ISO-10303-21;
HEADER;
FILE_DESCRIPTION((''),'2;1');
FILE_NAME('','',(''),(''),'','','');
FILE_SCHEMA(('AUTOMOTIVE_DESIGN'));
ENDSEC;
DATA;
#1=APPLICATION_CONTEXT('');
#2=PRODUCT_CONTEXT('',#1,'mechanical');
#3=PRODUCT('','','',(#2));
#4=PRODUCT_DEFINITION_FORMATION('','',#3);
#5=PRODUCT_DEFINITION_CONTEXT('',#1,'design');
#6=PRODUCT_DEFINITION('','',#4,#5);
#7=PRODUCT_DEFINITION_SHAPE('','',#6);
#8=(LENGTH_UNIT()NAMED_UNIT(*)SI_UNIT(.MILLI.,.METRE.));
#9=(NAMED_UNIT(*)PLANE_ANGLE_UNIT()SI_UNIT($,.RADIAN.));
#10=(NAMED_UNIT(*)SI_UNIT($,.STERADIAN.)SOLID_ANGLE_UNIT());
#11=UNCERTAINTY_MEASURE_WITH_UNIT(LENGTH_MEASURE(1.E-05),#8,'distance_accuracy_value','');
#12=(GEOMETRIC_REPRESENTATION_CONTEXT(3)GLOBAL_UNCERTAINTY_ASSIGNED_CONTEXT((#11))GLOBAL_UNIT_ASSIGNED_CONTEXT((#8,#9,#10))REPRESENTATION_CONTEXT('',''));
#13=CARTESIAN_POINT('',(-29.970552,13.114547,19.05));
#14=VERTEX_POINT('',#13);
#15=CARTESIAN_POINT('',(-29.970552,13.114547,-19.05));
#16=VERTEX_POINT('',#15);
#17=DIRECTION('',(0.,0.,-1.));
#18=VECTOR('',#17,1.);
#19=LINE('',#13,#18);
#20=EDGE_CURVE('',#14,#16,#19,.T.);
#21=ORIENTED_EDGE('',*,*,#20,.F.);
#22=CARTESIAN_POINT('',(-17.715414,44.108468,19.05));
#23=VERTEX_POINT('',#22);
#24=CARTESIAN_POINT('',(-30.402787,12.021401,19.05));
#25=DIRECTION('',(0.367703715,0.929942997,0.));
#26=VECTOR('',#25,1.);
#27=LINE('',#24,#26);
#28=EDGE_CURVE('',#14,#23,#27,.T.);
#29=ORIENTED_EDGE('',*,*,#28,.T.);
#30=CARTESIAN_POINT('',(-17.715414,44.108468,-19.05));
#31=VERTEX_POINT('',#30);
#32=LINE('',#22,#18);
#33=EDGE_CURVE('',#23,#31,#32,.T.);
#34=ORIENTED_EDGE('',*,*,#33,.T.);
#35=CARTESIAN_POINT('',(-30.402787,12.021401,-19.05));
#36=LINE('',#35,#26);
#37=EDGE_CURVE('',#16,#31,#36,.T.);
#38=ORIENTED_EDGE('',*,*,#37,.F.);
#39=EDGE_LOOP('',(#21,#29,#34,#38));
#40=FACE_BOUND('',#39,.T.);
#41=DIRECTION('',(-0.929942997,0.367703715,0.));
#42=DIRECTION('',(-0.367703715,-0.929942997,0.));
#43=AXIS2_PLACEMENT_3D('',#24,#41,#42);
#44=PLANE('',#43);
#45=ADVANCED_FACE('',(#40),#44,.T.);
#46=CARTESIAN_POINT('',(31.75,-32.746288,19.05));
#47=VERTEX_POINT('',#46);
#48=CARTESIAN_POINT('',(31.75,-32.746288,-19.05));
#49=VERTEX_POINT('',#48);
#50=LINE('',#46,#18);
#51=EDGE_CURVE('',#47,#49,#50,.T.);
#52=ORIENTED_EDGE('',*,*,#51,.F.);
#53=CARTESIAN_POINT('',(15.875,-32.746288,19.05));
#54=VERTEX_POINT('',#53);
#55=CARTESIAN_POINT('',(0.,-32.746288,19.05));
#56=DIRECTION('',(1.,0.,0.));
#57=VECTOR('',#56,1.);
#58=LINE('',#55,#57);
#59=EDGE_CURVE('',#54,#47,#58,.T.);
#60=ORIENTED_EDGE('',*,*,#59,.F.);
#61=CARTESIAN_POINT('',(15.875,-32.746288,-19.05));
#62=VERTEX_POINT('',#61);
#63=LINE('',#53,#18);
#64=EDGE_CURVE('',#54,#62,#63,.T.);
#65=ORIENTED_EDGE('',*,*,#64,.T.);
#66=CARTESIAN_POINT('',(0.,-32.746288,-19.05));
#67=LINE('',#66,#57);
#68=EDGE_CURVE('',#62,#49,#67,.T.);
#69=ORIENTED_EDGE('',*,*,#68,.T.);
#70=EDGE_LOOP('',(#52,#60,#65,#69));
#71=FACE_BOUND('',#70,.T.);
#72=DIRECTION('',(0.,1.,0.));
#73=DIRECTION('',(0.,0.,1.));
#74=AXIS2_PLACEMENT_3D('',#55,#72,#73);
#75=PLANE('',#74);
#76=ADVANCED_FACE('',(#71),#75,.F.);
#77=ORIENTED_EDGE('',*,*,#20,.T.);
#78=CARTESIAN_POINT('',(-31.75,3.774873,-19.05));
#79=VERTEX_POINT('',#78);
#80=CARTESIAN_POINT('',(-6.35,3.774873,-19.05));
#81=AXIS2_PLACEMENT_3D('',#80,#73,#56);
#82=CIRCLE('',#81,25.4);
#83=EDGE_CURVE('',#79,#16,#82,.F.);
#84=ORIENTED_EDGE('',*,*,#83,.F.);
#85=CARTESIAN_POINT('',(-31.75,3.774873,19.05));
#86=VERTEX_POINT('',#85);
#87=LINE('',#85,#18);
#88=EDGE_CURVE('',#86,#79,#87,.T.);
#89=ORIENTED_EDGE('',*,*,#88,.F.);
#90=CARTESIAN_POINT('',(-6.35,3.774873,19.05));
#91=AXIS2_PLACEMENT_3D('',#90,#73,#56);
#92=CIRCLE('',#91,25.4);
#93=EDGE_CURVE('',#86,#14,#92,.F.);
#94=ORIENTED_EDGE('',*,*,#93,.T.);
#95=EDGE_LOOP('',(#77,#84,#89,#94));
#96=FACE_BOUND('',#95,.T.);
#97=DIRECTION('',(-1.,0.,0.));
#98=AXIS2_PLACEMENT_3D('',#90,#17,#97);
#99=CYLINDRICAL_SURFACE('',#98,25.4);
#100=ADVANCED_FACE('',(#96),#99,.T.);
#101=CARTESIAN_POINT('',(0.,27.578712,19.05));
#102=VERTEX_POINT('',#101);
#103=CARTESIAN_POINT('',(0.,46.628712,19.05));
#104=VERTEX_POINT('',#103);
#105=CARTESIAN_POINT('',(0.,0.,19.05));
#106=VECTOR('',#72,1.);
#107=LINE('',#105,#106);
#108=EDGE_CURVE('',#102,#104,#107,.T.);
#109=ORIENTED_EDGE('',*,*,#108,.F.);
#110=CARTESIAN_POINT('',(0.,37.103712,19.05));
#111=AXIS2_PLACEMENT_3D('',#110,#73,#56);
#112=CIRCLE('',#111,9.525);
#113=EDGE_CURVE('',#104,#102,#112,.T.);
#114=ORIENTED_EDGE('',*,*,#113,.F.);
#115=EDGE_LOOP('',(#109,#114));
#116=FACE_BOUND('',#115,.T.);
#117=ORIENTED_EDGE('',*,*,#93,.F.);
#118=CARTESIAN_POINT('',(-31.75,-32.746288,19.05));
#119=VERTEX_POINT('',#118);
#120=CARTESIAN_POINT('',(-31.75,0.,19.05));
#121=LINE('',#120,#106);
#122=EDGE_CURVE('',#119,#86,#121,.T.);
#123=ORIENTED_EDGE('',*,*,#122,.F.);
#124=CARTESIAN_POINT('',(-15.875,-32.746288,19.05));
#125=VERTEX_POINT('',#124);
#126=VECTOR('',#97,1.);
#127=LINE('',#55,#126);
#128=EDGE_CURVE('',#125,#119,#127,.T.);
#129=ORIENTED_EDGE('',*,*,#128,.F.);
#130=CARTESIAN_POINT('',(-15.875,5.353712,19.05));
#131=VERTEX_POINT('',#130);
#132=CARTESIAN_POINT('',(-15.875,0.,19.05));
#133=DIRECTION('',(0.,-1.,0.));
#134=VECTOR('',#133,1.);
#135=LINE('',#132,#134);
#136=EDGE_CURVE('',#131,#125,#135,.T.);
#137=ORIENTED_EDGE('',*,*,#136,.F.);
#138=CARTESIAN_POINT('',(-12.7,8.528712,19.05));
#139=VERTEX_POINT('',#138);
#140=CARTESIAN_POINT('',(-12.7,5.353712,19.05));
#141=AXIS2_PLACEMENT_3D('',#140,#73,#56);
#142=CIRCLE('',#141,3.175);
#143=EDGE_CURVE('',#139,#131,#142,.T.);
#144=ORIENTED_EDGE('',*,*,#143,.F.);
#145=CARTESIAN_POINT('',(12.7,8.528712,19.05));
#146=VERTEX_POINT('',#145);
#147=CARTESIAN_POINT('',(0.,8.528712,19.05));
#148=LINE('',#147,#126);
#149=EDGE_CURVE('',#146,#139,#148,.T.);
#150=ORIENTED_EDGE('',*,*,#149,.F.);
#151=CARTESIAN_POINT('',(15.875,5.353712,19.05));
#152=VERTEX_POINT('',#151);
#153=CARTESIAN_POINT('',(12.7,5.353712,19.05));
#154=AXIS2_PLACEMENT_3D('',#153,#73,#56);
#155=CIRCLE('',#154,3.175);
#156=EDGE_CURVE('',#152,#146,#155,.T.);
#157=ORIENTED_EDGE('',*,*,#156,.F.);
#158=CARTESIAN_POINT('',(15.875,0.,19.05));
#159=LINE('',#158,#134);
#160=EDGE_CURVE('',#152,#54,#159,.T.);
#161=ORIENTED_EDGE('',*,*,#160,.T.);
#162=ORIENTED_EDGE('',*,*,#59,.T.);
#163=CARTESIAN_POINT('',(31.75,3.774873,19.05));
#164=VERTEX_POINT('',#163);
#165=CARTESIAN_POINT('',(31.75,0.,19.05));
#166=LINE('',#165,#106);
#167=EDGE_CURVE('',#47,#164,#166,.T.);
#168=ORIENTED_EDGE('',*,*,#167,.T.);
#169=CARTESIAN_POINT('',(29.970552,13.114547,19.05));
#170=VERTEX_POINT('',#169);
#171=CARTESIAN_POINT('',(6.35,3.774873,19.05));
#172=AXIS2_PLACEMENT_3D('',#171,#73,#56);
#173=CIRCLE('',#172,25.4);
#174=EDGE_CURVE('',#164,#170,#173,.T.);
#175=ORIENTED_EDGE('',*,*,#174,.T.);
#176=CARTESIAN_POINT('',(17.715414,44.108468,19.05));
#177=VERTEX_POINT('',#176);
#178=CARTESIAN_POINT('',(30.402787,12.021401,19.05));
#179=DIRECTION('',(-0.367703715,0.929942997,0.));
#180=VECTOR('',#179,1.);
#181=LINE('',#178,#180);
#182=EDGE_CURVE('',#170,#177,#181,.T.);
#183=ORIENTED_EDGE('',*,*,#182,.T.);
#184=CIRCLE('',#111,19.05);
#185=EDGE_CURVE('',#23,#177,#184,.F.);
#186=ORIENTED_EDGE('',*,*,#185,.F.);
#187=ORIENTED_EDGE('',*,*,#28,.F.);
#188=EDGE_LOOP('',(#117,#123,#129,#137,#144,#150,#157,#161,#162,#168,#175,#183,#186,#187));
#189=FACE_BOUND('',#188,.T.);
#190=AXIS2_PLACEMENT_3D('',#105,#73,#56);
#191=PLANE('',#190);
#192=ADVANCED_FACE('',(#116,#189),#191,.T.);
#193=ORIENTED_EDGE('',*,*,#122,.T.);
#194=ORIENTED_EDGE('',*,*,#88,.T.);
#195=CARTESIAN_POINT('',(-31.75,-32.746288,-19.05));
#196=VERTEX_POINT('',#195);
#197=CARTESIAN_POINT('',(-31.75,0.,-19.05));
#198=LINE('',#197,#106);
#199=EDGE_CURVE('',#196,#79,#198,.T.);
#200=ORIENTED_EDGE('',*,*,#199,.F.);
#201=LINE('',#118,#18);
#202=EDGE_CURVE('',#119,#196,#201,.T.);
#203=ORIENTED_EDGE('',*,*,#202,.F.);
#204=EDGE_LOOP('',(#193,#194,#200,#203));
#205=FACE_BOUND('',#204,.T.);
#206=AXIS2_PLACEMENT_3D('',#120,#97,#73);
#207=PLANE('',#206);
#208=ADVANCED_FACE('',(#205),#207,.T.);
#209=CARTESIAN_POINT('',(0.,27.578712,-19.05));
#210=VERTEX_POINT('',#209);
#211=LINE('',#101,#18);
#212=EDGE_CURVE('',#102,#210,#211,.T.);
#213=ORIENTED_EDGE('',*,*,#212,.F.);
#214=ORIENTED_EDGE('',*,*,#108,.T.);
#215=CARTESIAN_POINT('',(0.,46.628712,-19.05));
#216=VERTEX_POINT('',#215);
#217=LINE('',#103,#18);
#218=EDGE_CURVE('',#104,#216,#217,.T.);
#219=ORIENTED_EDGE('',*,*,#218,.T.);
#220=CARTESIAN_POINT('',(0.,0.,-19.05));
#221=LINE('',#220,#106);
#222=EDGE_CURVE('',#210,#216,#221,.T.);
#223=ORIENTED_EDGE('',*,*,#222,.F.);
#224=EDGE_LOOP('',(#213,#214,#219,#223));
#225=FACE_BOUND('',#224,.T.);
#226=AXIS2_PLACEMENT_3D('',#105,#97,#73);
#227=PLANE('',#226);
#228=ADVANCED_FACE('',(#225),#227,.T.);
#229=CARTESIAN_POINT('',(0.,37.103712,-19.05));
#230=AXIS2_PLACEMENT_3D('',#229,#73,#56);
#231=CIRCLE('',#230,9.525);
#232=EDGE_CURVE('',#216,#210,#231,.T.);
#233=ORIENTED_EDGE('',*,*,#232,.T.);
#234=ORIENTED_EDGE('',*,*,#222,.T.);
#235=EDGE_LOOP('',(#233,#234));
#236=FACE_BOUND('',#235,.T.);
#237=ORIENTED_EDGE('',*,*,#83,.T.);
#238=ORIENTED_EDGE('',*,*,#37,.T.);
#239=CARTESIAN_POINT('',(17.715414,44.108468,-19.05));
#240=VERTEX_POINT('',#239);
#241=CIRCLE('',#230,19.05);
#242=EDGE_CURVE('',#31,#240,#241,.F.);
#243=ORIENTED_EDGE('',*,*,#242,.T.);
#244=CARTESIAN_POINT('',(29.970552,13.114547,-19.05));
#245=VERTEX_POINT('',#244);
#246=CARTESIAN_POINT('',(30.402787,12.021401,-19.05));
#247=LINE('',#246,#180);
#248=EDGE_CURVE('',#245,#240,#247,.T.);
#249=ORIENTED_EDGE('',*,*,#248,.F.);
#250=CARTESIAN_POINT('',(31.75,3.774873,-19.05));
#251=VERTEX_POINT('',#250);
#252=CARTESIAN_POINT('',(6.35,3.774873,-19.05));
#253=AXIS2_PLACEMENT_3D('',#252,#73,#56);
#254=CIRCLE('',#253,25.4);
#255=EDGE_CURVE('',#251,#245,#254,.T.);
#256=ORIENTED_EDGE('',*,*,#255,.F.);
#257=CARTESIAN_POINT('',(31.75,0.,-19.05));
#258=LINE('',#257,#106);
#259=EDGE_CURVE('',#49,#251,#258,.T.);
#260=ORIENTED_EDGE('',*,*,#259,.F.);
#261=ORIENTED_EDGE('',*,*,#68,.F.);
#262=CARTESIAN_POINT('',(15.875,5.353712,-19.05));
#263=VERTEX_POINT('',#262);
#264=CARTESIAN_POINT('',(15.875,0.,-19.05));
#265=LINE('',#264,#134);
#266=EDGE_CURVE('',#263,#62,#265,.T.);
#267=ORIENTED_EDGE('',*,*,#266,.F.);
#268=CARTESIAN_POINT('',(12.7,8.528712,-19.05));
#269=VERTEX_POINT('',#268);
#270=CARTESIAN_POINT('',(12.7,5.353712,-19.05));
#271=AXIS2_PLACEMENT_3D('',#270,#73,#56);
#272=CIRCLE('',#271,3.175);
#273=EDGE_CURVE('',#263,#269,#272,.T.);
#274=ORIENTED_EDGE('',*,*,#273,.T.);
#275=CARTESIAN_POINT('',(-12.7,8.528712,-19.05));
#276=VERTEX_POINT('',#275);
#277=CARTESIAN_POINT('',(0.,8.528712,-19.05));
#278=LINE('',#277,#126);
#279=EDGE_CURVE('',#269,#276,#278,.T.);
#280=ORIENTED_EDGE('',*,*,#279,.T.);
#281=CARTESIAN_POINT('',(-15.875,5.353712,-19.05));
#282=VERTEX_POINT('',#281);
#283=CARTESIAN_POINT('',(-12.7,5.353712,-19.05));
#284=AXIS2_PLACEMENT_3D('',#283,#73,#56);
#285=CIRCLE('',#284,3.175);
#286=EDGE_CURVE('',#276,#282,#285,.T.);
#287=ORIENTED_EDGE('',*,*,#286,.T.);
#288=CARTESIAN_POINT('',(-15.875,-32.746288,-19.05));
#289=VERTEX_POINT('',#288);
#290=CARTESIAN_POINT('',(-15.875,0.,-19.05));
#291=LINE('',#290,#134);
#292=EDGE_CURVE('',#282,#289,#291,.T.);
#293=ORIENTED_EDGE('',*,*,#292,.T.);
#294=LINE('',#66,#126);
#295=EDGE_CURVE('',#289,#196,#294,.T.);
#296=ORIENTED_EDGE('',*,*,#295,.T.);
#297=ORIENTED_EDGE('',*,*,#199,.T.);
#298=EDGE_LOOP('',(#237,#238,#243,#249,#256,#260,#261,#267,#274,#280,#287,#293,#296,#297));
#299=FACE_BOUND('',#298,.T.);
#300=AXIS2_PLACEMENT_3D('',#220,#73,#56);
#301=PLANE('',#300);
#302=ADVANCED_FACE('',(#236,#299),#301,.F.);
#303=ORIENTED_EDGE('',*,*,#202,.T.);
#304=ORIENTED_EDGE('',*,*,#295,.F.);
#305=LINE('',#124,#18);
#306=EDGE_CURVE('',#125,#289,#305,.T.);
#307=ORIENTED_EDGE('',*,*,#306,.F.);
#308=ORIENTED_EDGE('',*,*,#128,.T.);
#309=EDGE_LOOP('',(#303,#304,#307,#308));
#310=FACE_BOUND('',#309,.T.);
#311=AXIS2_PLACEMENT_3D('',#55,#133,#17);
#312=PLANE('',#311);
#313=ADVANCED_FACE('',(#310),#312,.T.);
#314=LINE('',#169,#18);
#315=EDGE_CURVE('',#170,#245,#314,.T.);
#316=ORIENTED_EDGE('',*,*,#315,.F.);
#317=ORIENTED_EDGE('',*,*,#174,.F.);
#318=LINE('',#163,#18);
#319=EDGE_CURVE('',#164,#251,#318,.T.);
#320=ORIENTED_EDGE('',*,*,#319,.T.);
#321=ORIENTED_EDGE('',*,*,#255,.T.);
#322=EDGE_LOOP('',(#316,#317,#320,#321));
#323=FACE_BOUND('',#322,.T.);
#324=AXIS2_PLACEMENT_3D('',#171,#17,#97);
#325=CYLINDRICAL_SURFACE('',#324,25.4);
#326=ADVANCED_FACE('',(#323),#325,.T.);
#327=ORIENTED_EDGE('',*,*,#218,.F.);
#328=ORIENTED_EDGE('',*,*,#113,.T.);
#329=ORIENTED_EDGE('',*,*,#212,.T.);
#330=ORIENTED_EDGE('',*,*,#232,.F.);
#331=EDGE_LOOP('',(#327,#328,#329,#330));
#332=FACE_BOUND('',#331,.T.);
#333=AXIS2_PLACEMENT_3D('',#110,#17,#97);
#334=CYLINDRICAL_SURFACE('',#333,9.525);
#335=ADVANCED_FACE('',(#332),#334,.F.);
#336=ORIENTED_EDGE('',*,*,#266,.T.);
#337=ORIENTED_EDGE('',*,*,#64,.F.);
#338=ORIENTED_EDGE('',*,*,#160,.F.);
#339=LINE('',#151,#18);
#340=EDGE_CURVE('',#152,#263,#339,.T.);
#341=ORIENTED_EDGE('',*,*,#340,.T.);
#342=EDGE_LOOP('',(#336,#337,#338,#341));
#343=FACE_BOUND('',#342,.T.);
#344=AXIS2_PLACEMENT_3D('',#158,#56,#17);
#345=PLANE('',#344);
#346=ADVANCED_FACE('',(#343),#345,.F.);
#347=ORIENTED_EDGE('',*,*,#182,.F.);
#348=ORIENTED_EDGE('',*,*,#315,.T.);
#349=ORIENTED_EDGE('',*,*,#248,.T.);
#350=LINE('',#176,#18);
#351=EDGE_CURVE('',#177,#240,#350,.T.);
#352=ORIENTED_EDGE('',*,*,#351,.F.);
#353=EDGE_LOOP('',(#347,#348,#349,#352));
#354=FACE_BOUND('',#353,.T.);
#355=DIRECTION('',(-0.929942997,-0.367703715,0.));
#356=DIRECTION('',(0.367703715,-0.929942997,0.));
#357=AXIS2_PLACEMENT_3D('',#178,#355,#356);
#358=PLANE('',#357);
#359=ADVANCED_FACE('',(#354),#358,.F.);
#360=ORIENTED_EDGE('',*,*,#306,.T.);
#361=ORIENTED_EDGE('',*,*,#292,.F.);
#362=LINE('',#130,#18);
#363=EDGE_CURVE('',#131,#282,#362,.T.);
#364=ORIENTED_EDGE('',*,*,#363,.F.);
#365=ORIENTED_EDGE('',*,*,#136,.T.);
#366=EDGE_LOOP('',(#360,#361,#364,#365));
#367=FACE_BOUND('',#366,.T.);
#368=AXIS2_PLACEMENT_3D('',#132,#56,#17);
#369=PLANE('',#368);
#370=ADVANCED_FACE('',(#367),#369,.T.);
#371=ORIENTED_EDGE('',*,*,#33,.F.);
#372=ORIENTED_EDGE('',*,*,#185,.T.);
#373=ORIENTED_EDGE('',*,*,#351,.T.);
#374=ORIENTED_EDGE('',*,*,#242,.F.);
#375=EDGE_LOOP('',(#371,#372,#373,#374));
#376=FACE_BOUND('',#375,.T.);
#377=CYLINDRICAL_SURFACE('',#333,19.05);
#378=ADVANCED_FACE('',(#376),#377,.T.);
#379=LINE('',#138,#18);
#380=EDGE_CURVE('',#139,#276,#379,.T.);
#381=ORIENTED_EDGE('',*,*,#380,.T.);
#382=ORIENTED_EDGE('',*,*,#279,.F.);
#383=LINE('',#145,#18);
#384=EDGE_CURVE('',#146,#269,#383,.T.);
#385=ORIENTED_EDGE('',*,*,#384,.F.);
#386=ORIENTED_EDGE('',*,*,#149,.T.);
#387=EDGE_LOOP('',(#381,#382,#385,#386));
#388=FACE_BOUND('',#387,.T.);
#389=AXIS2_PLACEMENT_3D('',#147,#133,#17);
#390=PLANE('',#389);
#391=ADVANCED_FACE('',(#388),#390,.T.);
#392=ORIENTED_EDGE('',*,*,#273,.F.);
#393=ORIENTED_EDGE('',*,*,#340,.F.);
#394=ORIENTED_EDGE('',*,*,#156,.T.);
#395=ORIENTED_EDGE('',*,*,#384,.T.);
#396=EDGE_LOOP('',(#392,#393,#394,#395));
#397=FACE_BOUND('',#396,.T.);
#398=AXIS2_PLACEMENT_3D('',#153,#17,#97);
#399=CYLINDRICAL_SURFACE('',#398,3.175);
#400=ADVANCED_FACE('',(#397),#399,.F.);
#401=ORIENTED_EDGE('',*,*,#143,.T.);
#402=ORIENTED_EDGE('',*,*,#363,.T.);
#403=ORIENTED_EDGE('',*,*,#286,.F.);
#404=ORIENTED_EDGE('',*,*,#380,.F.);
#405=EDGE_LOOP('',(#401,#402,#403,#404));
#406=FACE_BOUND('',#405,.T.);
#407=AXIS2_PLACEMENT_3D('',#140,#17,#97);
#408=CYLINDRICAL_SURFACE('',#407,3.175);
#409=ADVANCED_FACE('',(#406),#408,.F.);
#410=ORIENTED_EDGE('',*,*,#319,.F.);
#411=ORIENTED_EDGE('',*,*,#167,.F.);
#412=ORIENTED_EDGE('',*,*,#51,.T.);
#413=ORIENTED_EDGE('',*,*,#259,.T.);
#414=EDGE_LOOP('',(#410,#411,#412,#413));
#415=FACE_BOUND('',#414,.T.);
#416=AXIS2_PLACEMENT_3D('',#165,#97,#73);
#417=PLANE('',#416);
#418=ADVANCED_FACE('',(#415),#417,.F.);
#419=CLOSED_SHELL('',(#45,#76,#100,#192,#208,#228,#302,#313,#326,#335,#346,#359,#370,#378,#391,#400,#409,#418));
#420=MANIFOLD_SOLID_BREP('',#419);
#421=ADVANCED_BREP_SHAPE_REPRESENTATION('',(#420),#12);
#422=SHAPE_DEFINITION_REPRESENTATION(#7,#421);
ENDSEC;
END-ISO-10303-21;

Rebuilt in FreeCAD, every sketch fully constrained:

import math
import FreeCAD as App
import Part
import Sketcher
Q = App.Units.Quantity

doc = App.newDocument("Part")
body = doc.addObject("PartDesign::Body", "Body")

# Sketch on XY plane
sketch1 = doc.addObject("Sketcher::SketchObject", "Sketch")
body.addObject(sketch1)
sketch1.AttachmentSupport = (doc.XY_Plane, [""])
sketch1.MapMode = "FlatFace"
sketch1.addGeometry(Part.LineSegment(App.Vector(-12.7, 8.5, 0), App.Vector(12.7, 8.5, 0)), False)
sketch1.addGeometry(Part.ArcOfCircle(Part.Circle(App.Vector(12.7, 5.4, 0), App.Vector(0, 0, 1), 3.2), math.radians(0), math.radians(90)), False)
sketch1.addGeometry(Part.LineSegment(App.Vector(15.9, 5.4, 0), App.Vector(15.9, -32.7, 0)), False)
sketch1.addGeometry(Part.LineSegment(App.Vector(15.9, -32.7, 0), App.Vector(31.8, -32.7, 0)), False)
sketch1.addGeometry(Part.LineSegment(App.Vector(31.8, -32.7, 0), App.Vector(31.8, 3.8, 0)), False)
sketch1.addGeometry(Part.ArcOfCircle(Part.Circle(App.Vector(6.4, 3.8, 0), App.Vector(0, 0, 1), 25.4), math.radians(0), math.radians(22)), False)
sketch1.addGeometry(Part.LineSegment(App.Vector(30, 13.1, 0), App.Vector(17.7, 44.1, 0)), False)
sketch1.addGeometry(Part.ArcOfCircle(Part.Circle(App.Vector(0, 37.1, 0), App.Vector(0, 0, 1), 19.1), math.radians(22), math.radians(158)), False)
sketch1.addGeometry(Part.LineSegment(App.Vector(-17.7, 44.1, 0), App.Vector(-30, 13.1, 0)), False)
sketch1.addGeometry(Part.ArcOfCircle(Part.Circle(App.Vector(-6.4, 3.8, 0), App.Vector(0, 0, 1), 25.4), math.radians(158), math.radians(180)), False)
sketch1.addGeometry(Part.LineSegment(App.Vector(-31.8, 3.8, 0), App.Vector(-31.8, -32.7, 0)), False)
sketch1.addGeometry(Part.LineSegment(App.Vector(-31.8, -32.7, 0), App.Vector(-15.9, -32.7, 0)), False)
sketch1.addGeometry(Part.LineSegment(App.Vector(-15.9, -32.7, 0), App.Vector(-15.9, 5.4, 0)), False)
sketch1.addGeometry(Part.ArcOfCircle(Part.Circle(App.Vector(-12.7, 5.4, 0), App.Vector(0, 0, 1), 3.2), math.radians(90), math.radians(180)), False)
sketch1.addGeometry(Part.ArcOfCircle(Part.Circle(App.Vector(0, 37.1, 0), App.Vector(0, 0, 1), 9.5), math.radians(90), math.radians(270)), False)
sketch1.addGeometry(Part.LineSegment(App.Vector(0, 46.6, 0), App.Vector(0, 27.6, 0)), False)
sketch1.addConstraint(Sketcher.Constraint("Tangent", 0, 2, 1, 2))
sketch1.addConstraint(Sketcher.Constraint("Tangent", 1, 1, 2, 1))
sketch1.addConstraint(Sketcher.Constraint("Coincident", 2, 2, 3, 1))
sketch1.addConstraint(Sketcher.Constraint("Coincident", 3, 2, 4, 1))
sketch1.addConstraint(Sketcher.Constraint("Tangent", 4, 2, 5, 1))
sketch1.addConstraint(Sketcher.Constraint("Tangent", 5, 2, 6, 1))
sketch1.addConstraint(Sketcher.Constraint("Tangent", 6, 2, 7, 1))
sketch1.addConstraint(Sketcher.Constraint("Tangent", 7, 2, 8, 1))
sketch1.addConstraint(Sketcher.Constraint("Tangent", 8, 2, 9, 1))
sketch1.addConstraint(Sketcher.Constraint("Tangent", 9, 2, 10, 1))
sketch1.addConstraint(Sketcher.Constraint("Coincident", 10, 2, 11, 1))
sketch1.addConstraint(Sketcher.Constraint("Coincident", 11, 2, 12, 1))
sketch1.addConstraint(Sketcher.Constraint("Tangent", 12, 2, 13, 2))
sketch1.addConstraint(Sketcher.Constraint("Tangent", 13, 1, 0, 1))
sketch1.addConstraint(Sketcher.Constraint("Coincident", 14, 1, 15, 1))
sketch1.addConstraint(Sketcher.Constraint("Coincident", 15, 2, 14, 2))
sketch1.addConstraint(Sketcher.Constraint("Horizontal", 0))
sketch1.addConstraint(Sketcher.Constraint("Vertical", 2))
sketch1.addConstraint(Sketcher.Constraint("Horizontal", 3))
sketch1.addConstraint(Sketcher.Constraint("Vertical", 4))
sketch1.addConstraint(Sketcher.Constraint("Vertical", 10))
sketch1.addConstraint(Sketcher.Constraint("Horizontal", 11))
sketch1.addConstraint(Sketcher.Constraint("Vertical", 12))
sketch1.addConstraint(Sketcher.Constraint("Vertical", 15))
sketch1.addConstraint(Sketcher.Constraint("Coincident", 14, 3, 7, 3))
sketch1.addConstraint(Sketcher.Constraint("Equal", 5, 9))
sketch1.addConstraint(Sketcher.Constraint("Equal", 1, 13))
sketch1.addConstraint(Sketcher.Constraint("Symmetric", 5, 3, 9, 3, -2))
sketch1.addConstraint(Sketcher.Constraint("Symmetric", 2, 2, 11, 2, -2))
sketch1.addConstraint(Sketcher.Constraint("PointOnObject", 7, 3, -2))
sketch1.addConstraint(Sketcher.Constraint("PointOnObject", 14, 1, -2))
sketch1.addConstraint(Sketcher.Constraint("Radius", 5, Q("1 in")))
sketch1.addConstraint(Sketcher.Constraint("DistanceX", 0, 1, 0, 2, Q("1 in")))
sketch1.addConstraint(Sketcher.Constraint("Radius", 7, Q("0.75 in")))
sketch1.addConstraint(Sketcher.Constraint("DistanceY", 2, 2, 2, 1, Q("1.5 in")))
sketch1.addConstraint(Sketcher.Constraint("Radius", 1, Q("0.125 in")))
sketch1.addConstraint(Sketcher.Constraint("Radius", 14, Q("0.375 in")))
sketch1.addConstraint(Sketcher.Constraint("DistanceX", 9, 3, 5, 3, Q("0.5 in")))
sketch1.addConstraint(Sketcher.Constraint("DistanceY", 0, 2, 14, 1, Q("1.5 in")))
sketch1.addConstraint(Sketcher.Constraint("DistanceY", 4, 1, 4, 2, 36.521161))
sketch1.addConstraint(Sketcher.Constraint("DistanceY", -1, 1, 1, 3, 5.353712))
pad1 = doc.addObject("PartDesign::Pad", "Pad")
body.addObject(pad1)
pad1.Profile = sketch1
pad1.Length = Q("1.5 in")
pad1.Midplane = True

doc.recompute()
